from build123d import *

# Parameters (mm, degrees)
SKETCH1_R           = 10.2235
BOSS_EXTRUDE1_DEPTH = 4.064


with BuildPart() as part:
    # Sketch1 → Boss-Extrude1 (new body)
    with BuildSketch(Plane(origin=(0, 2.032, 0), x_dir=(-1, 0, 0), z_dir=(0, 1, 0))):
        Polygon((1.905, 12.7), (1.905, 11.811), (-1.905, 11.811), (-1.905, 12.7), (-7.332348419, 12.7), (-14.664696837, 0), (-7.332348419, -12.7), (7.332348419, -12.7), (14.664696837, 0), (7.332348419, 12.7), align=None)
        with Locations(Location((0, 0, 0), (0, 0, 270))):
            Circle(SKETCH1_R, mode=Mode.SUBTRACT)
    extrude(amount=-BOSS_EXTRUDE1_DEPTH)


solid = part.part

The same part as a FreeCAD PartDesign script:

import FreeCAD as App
import Part
import Sketcher

V = App.Vector
Q = App.Units.Quantity

doc = App.newDocument("Part")
body = doc.addObject("PartDesign::Body", "Body")

# Sketch on XZ plane
sketch1 = body.newObject("Sketcher::SketchObject", "Sketch")
sketch1.AttachmentSupport = (doc.getObject("XZ_Plane"), [""])
sketch1.MapMode = "FlatFace"
sketch1.AttachmentOffset = App.Placement(V(0, 0, -0.08 * 25.4), App.Rotation())
sketch1.addGeometry(Part.LineSegment(V(-1.9, 12.7, 0), V(-1.9, 11.8, 0)), False)
sketch1.addGeometry(Part.LineSegment(V(-1.9, 11.8, 0), V(1.9, 11.8, 0)), False)
sketch1.addGeometry(Part.LineSegment(V(1.9, 11.8, 0), V(1.9, 12.7, 0)), False)
sketch1.addGeometry(Part.LineSegment(V(1.9, 12.7, 0), V(7.3, 12.7, 0)), False)
sketch1.addGeometry(Part.LineSegment(V(7.3, 12.7, 0), V(14.7, 0, 0)), False)
sketch1.addGeometry(Part.LineSegment(V(14.7, 0, 0), V(7.3, -12.7, 0)), False)
sketch1.addGeometry(Part.LineSegment(V(7.3, -12.7, 0), V(-7.3, -12.7, 0)), False)
sketch1.addGeometry(Part.LineSegment(V(-7.3, -12.7, 0), V(-14.7, 0, 0)), False)
sketch1.addGeometry(Part.LineSegment(V(-14.7, 0, 0), V(-7.3, 12.7, 0)), False)
sketch1.addGeometry(Part.LineSegment(V(-7.3, 12.7, 0), V(-1.9, 12.7, 0)), False)
sketch1.addGeometry(Part.Circle(V(0, 0, 0), V(0, 0, 1), 10.2), False)
sketch1.addConstraint(Sketcher.Constraint("Coincident", 0, 2, 1, 1))
sketch1.addConstraint(Sketcher.Constraint("Coincident", 1, 2, 2, 1))
sketch1.addConstraint(Sketcher.Constraint("Coincident", 2, 2, 3, 1))
sketch1.addConstraint(Sketcher.Constraint("Coincident", 3, 2, 4, 1))
sketch1.addConstraint(Sketcher.Constraint("Coincident", 4, 2, 5, 1))
sketch1.addConstraint(Sketcher.Constraint("Coincident", 5, 2, 6, 1))
sketch1.addConstraint(Sketcher.Constraint("Coincident", 6, 2, 7, 1))
sketch1.addConstraint(Sketcher.Constraint("Coincident", 7, 2, 8, 1))
sketch1.addConstraint(Sketcher.Constraint("Coincident", 8, 2, 9, 1))
sketch1.addConstraint(Sketcher.Constraint("Coincident", 9, 2, 0, 1))
sketch1.addConstraint(Sketcher.Constraint("Vertical", 0))
sketch1.addConstraint(Sketcher.Constraint("Horizontal", 1))
sketch1.addConstraint(Sketcher.Constraint("Vertical", 2))
sketch1.addConstraint(Sketcher.Constraint("Horizontal", 3))
sketch1.addConstraint(Sketcher.Constraint("Horizontal", 6))
sketch1.addConstraint(Sketcher.Constraint("Horizontal", 9))
sketch1.addConstraint(Sketcher.Constraint("Coincident", 10, 3, -1, 1))
sketch1.addConstraint(Sketcher.Constraint("Symmetric", 3, 2, 6, 2, -1, 1))
sketch1.addConstraint(Sketcher.Constraint("Symmetric", 4, 2, 7, 2, -1, 1))
sketch1.addConstraint(Sketcher.Constraint("Symmetric", 5, 2, 8, 2, -1, 1))
sketch1.addConstraint(Sketcher.Constraint("PointOnObject", 4, 2, -1))
sketch1.addConstraint(Sketcher.Constraint("Vertical", 3, 2, 5, 2))
sketch1.addConstraint(Sketcher.Constraint("Equal", 3, 9))
sketch1.addConstraint(Sketcher.Constraint("Diameter", 10, Q("0.805 in")))
sketch1.addConstraint(Sketcher.Constraint("Angle", 4, Q("-60 deg")))
sketch1.addConstraint(Sketcher.Constraint("DistanceY", 5, 2, 3, 2, Q("1 in")))
sketch1.addConstraint(Sketcher.Constraint("DistanceX", 1, 1, 1, 2, Q("0.15 in")))
sketch1.addConstraint(Sketcher.Constraint("DistanceY", 0, 2, 0, 1, Q("0.035 in")))
sketch1.addConstraint(Sketcher.Constraint("DistanceX", 3, 1, 3, 2, 5.427348))
pad1 = body.newObject("PartDesign::Pad", "Pad")
pad1.Profile = sketch1
pad1.Length = Q("0.16 in")

doc.recompute()
